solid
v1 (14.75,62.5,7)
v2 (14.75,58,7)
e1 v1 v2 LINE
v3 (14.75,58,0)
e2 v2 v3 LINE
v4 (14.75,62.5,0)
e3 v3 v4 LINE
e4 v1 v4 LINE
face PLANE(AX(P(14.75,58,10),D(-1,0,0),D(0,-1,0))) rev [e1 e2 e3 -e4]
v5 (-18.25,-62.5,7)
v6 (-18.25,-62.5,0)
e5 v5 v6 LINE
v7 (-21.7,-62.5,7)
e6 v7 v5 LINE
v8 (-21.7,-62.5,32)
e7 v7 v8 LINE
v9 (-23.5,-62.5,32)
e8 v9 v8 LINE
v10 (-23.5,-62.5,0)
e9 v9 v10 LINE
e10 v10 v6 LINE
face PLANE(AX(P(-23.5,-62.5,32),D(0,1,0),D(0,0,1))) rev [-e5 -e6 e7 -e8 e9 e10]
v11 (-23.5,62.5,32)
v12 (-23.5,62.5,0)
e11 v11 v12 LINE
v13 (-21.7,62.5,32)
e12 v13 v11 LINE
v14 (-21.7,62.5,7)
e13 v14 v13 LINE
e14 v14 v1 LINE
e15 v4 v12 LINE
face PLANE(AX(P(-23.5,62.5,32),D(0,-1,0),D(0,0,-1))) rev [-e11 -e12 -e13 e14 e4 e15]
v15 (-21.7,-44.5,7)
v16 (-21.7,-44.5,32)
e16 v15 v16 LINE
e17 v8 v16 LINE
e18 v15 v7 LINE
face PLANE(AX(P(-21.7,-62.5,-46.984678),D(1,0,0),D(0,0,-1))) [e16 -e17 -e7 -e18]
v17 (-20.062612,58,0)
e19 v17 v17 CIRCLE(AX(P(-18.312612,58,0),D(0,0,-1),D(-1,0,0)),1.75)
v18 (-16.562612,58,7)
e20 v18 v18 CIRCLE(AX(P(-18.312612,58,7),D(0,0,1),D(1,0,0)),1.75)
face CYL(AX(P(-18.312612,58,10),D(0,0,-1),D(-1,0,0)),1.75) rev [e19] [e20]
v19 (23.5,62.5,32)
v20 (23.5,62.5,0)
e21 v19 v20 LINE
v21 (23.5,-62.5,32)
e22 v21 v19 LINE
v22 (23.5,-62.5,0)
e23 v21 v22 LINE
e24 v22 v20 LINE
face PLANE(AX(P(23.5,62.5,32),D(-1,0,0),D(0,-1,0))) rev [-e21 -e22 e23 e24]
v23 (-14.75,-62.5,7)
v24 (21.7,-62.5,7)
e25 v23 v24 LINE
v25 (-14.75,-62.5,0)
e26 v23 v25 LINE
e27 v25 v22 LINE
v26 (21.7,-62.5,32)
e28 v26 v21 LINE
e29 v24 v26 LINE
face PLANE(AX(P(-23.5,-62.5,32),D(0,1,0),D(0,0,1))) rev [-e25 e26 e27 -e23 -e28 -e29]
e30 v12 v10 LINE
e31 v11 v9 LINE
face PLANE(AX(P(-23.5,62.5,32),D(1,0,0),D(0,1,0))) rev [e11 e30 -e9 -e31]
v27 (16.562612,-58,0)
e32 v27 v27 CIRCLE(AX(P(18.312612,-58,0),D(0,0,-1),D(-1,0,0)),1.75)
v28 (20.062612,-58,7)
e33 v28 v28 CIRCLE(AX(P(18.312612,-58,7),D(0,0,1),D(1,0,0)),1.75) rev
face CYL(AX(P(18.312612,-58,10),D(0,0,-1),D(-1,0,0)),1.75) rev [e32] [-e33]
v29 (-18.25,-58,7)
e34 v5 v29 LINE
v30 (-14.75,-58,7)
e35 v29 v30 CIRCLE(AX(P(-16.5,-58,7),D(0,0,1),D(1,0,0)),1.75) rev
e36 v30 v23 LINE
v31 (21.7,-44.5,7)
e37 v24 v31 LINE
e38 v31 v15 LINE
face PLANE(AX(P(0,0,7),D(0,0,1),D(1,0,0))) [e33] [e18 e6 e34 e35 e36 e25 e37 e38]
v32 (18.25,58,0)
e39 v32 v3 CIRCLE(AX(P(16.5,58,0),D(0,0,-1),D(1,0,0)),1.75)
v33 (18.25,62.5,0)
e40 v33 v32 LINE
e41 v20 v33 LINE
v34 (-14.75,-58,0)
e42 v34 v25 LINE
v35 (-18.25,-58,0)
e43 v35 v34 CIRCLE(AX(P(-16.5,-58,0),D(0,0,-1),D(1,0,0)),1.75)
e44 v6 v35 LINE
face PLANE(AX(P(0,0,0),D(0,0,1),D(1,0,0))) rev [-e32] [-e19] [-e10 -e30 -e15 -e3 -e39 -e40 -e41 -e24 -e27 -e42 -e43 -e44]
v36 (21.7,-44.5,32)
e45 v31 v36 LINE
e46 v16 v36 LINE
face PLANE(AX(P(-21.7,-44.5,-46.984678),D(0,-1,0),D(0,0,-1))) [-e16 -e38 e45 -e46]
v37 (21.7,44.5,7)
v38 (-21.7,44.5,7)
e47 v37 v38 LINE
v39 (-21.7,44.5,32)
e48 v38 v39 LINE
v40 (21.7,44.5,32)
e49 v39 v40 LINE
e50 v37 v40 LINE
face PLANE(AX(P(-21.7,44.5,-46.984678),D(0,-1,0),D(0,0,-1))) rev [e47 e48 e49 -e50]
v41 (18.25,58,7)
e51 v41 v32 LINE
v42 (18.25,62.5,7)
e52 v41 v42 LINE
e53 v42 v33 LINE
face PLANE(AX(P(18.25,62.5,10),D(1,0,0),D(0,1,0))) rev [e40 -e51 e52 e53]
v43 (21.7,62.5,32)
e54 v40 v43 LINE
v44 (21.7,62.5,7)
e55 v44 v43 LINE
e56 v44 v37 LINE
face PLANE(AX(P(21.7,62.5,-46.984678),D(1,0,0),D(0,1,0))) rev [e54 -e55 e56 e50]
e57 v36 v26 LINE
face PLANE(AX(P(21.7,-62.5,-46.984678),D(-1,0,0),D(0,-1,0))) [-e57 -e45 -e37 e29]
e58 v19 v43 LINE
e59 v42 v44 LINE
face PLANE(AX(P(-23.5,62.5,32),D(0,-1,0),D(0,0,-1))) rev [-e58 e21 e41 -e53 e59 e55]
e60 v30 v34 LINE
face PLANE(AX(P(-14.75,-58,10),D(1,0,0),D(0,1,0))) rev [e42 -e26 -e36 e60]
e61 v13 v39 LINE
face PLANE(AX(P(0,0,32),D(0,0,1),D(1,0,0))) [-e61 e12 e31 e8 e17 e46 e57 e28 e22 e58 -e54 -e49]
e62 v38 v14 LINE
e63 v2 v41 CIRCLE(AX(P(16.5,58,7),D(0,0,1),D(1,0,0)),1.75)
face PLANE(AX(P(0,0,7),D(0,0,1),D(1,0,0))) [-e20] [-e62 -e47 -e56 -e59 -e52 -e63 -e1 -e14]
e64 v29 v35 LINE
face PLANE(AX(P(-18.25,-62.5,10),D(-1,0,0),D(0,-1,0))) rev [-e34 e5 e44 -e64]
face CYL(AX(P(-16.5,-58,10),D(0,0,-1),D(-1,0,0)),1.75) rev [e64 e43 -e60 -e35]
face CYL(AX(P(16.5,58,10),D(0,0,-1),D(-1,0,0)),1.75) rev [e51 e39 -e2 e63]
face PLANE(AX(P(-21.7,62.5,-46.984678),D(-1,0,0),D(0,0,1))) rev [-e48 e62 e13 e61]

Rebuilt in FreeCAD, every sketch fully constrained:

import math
import FreeCAD as App
import Part
import Sketcher
from FreeCAD import Vector
Q = App.Units.Quantity


def add_polygon(sketch, points):
    """Adds a closed chain of lines whose ends are joined by coincident constraints."""
    first, n = sketch.GeometryCount, len(points)
    for a, b in zip(points, points[1:] + points[:1]):
        sketch.addGeometry(Part.LineSegment(App.Vector(*a, 0), App.Vector(*b, 0)), False)
    for i in range(n):
        sketch.addConstraint(Sketcher.Constraint("Coincident", first + i, 2, first + (i + 1) % n, 1))

doc = App.newDocument("Part")
params = doc.addObject("Spreadsheet::Sheet", "Params")
for row, (alias, value) in enumerate([
    ("sketch1_width", "47 mm"),
    ("sketch1_height", "125 mm"),
    ("pad1_length", "32 mm"),
    ("sketch2_height", "18 mm"),
    ("sketch2_width", "43.4 mm"),
    ("pocket1_length", "25 mm"),
    ("sketch3_diameter", "3.5 mm"),
    ("sketch3_height", "4.5 mm"),
    ("pocket2_length", "10 mm"),
], start=1):
    params.set(f"A{row}", alias)
    params.set(f"B{row}", "=" + value)
    params.setAlias(f"B{row}", alias)

body = doc.addObject("PartDesign::Body", "Body")

sketch1 = body.newObject("Sketcher::SketchObject", "Sketch")
sketch1.AttachmentSupport = (doc.getObject("XY_Plane"), [""])
sketch1.MapMode = "FlatFace"
add_polygon(sketch1, [(-24, 62), (-24, -62), (24, -62), (24, 62)])
sketch1.addConstraint(Sketcher.Constraint("Vertical", 0))
sketch1.addConstraint(Sketcher.Constraint("Horizontal", 1))
sketch1.addConstraint(Sketcher.Constraint("Vertical", 2))
sketch1.addConstraint(Sketcher.Constraint("Horizontal", 3))
sketch1.addConstraint(Sketcher.Constraint("Symmetric", 0, 2, 2, 2, -1, 1))
sketch1.addConstraint(Sketcher.Constraint("DistanceX", 1, 1, 1, 2, Q("47 mm")))
sketch1.addConstraint(Sketcher.Constraint("DistanceY", 0, 2, 0, 1, Q("125 mm")))
sketch1.setExpression("Constraints[9]", "Params.sketch1_width")
sketch1.setExpression("Constraints[10]", "Params.sketch1_height")
pad1 = body.newObject("PartDesign::Pad", "Pad")
pad1.Profile = sketch1
pad1.setExpression("Length", "Params.pad1_length")

sketch2 = body.newObject("Sketcher::SketchObject", "Sketch001")
sketch2.AttachmentSupport = (doc.getObject("XY_Plane"), [""])
sketch2.MapMode = "FlatFace"
sketch2.AttachmentOffset = App.Placement(Vector(0, 0, 32), App.Rotation())
add_polygon(sketch2, [(-22, 62), (-22, 44), (22, 44), (22, 62)])
sketch2.addConstraint(Sketcher.Constraint("Vertical", 0))
sketch2.addConstraint(Sketcher.Constraint("Horizontal", 1))
sketch2.addConstraint(Sketcher.Constraint("Vertical", 2))
sketch2.addConstraint(Sketcher.Constraint("Horizontal", 3))
sketch2.addConstraint(Sketcher.Constraint("DistanceY", 0, 2, 0, 1, Q("18 mm")))
sketch2.addConstraint(Sketcher.Constraint("DistanceX", 1, 1, 1, 2, Q("43.4 mm")))
sketch2.addConstraint(Sketcher.Constraint("DistanceX", 0, 2, -1, 1, Q("21.7 mm")))
sketch2.addConstraint(Sketcher.Constraint("DistanceY", -1, 1, 0, 2, Q("44.5 mm")))
sketch2.setExpression("Constraints[8]", "Params.sketch2_height")
sketch2.setExpression("Constraints[9]", "Params.sketch2_width")
pocket1 = body.newObject("PartDesign::Pocket", "Pocket")
pocket1.Profile = sketch2
pocket1.setExpression("Length", "Params.pocket1_length")

sketch3 = body.newObject("Sketcher::SketchObject", "Sketch002")
sketch3.AttachmentSupport = (doc.getObject("XY_Plane"), [""])
sketch3.MapMode = "FlatFace"
sketch3.addGeometry(Part.Circle(Vector(18.3, -58, 0), Vector(0, 0, 1), 1.8), False)
sketch3.addGeometry(Part.Circle(Vector(-18.3, 58, 0), Vector(0, 0, 1), 1.8), False)
sketch3.addGeometry(Part.LineSegment(Vector(-14.8, -58, 0), Vector(-14.8, -62.5, 0)), False)
sketch3.addGeometry(Part.LineSegment(Vector(-14.8, -62.5, 0), Vector(-18.2, -62.5, 0)), False)
sketch3.addGeometry(Part.LineSegment(Vector(-18.2, -62.5, 0), Vector(-18.2, -58, 0)), False)
sketch3.addGeometry(Part.ArcOfCircle(Part.Circle(Vector(-16.5, -58, 0), Vector(0, 0, 1), 1.8), math.radians(0), math.radians(180)), False)
sketch3.addGeometry(Part.LineSegment(Vector(14.8, 58, 0), Vector(14.8, 62.5, 0)), False)
sketch3.addGeometry(Part.LineSegment(Vector(14.8, 62.5, 0), Vector(18.2, 62.5, 0)), False)
sketch3.addGeometry(Part.LineSegment(Vector(18.2, 62.5, 0), Vector(18.2, 58, 0)), False)
sketch3.addGeometry(Part.ArcOfCircle(Part.Circle(Vector(16.5, 58, 0), Vector(0, 0, 1), 1.8), math.radians(180), math.radians(360)), False)
sketch3.addConstraint(Sketcher.Constraint("Coincident", 2, 2, 3, 1))
sketch3.addConstraint(Sketcher.Constraint("Coincident", 3, 2, 4, 1))
sketch3.addConstraint(Sketcher.Constraint("Tangent", 4, 2, 5, 2))
sketch3.addConstraint(Sketcher.Constraint("Tangent", 5, 1, 2, 1))
sketch3.addConstraint(Sketcher.Constraint("Coincident", 6, 2, 7, 1))
sketch3.addConstraint(Sketcher.Constraint("Coincident", 7, 2, 8, 1))
sketch3.addConstraint(Sketcher.Constraint("Tangent", 8, 2, 9, 2))
sketch3.addConstraint(Sketcher.Constraint("Tangent", 9, 1, 6, 1))
sketch3.addConstraint(Sketcher.Constraint("Vertical", 2))
sketch3.addConstraint(Sketcher.Constraint("Horizontal", 3))
sketch3.addConstraint(Sketcher.Constraint("Vertical", 4))
sketch3.addConstraint(Sketcher.Constraint("Vertical", 6))
sketch3.addConstraint(Sketcher.Constraint("Horizontal", 7))
sketch3.addConstraint(Sketcher.Constraint("Vertical", 8))
sketch3.addConstraint(Sketcher.Constraint("Equal", 0, 1))
sketch3.addConstraint(Sketcher.Constraint("Equal", 1, 5))
sketch3.addConstraint(Sketcher.Constraint("Equal", 5, 9))
sketch3.addConstraint(Sketcher.Constraint("Symmetric", 0, 3, 1, 3, -1, 1))
sketch3.addConstraint(Sketcher.Constraint("Symmetric", 5, 3, 9, 3, -1, 1))
sketch3.addConstraint(Sketcher.Constraint("Horizontal", 0, 3, 5, 3))
sketch3.addConstraint(Sketcher.Constraint("Equal", 4, 6))
sketch3.addConstraint(Sketcher.Constraint("Diameter", 0, Q("3.5 mm")))
sketch3.addConstraint(Sketcher.Constraint("DistanceY", 2, 2, 2, 1, Q("4.5 mm")))
sketch3.addConstraint(Sketcher.Constraint("DistanceY", 0, 3, -1, 1, Q("58 mm")))
sketch3.addConstraint(Sketcher.Constraint("DistanceX", 5, 3, 9, 3, Q("33 mm")))
sketch3.addConstraint(Sketcher.Constraint("DistanceX", -1, 1, 0, 3, Q("18.312612 mm")))
sketch3.setExpression("Constraints[21]", "Params.sketch3_diameter")
sketch3.setExpression("Constraints[22]", "Params.sketch3_height")
pocket2 = body.newObject("PartDesign::Pocket", "Pocket001")
pocket2.Profile = sketch3
pocket2.setExpression("Length", "Params.pocket2_length")
pocket2.Reversed = True
doc.recompute()

mirrored = body.newObject("PartDesign::Mirrored", "Mirrored")
mirrored.Originals = [pocket1]
mirrored.MirrorPlane = (doc.getObject("XZ_Plane"), [""])
body.Tip = mirrored

doc.recompute()
